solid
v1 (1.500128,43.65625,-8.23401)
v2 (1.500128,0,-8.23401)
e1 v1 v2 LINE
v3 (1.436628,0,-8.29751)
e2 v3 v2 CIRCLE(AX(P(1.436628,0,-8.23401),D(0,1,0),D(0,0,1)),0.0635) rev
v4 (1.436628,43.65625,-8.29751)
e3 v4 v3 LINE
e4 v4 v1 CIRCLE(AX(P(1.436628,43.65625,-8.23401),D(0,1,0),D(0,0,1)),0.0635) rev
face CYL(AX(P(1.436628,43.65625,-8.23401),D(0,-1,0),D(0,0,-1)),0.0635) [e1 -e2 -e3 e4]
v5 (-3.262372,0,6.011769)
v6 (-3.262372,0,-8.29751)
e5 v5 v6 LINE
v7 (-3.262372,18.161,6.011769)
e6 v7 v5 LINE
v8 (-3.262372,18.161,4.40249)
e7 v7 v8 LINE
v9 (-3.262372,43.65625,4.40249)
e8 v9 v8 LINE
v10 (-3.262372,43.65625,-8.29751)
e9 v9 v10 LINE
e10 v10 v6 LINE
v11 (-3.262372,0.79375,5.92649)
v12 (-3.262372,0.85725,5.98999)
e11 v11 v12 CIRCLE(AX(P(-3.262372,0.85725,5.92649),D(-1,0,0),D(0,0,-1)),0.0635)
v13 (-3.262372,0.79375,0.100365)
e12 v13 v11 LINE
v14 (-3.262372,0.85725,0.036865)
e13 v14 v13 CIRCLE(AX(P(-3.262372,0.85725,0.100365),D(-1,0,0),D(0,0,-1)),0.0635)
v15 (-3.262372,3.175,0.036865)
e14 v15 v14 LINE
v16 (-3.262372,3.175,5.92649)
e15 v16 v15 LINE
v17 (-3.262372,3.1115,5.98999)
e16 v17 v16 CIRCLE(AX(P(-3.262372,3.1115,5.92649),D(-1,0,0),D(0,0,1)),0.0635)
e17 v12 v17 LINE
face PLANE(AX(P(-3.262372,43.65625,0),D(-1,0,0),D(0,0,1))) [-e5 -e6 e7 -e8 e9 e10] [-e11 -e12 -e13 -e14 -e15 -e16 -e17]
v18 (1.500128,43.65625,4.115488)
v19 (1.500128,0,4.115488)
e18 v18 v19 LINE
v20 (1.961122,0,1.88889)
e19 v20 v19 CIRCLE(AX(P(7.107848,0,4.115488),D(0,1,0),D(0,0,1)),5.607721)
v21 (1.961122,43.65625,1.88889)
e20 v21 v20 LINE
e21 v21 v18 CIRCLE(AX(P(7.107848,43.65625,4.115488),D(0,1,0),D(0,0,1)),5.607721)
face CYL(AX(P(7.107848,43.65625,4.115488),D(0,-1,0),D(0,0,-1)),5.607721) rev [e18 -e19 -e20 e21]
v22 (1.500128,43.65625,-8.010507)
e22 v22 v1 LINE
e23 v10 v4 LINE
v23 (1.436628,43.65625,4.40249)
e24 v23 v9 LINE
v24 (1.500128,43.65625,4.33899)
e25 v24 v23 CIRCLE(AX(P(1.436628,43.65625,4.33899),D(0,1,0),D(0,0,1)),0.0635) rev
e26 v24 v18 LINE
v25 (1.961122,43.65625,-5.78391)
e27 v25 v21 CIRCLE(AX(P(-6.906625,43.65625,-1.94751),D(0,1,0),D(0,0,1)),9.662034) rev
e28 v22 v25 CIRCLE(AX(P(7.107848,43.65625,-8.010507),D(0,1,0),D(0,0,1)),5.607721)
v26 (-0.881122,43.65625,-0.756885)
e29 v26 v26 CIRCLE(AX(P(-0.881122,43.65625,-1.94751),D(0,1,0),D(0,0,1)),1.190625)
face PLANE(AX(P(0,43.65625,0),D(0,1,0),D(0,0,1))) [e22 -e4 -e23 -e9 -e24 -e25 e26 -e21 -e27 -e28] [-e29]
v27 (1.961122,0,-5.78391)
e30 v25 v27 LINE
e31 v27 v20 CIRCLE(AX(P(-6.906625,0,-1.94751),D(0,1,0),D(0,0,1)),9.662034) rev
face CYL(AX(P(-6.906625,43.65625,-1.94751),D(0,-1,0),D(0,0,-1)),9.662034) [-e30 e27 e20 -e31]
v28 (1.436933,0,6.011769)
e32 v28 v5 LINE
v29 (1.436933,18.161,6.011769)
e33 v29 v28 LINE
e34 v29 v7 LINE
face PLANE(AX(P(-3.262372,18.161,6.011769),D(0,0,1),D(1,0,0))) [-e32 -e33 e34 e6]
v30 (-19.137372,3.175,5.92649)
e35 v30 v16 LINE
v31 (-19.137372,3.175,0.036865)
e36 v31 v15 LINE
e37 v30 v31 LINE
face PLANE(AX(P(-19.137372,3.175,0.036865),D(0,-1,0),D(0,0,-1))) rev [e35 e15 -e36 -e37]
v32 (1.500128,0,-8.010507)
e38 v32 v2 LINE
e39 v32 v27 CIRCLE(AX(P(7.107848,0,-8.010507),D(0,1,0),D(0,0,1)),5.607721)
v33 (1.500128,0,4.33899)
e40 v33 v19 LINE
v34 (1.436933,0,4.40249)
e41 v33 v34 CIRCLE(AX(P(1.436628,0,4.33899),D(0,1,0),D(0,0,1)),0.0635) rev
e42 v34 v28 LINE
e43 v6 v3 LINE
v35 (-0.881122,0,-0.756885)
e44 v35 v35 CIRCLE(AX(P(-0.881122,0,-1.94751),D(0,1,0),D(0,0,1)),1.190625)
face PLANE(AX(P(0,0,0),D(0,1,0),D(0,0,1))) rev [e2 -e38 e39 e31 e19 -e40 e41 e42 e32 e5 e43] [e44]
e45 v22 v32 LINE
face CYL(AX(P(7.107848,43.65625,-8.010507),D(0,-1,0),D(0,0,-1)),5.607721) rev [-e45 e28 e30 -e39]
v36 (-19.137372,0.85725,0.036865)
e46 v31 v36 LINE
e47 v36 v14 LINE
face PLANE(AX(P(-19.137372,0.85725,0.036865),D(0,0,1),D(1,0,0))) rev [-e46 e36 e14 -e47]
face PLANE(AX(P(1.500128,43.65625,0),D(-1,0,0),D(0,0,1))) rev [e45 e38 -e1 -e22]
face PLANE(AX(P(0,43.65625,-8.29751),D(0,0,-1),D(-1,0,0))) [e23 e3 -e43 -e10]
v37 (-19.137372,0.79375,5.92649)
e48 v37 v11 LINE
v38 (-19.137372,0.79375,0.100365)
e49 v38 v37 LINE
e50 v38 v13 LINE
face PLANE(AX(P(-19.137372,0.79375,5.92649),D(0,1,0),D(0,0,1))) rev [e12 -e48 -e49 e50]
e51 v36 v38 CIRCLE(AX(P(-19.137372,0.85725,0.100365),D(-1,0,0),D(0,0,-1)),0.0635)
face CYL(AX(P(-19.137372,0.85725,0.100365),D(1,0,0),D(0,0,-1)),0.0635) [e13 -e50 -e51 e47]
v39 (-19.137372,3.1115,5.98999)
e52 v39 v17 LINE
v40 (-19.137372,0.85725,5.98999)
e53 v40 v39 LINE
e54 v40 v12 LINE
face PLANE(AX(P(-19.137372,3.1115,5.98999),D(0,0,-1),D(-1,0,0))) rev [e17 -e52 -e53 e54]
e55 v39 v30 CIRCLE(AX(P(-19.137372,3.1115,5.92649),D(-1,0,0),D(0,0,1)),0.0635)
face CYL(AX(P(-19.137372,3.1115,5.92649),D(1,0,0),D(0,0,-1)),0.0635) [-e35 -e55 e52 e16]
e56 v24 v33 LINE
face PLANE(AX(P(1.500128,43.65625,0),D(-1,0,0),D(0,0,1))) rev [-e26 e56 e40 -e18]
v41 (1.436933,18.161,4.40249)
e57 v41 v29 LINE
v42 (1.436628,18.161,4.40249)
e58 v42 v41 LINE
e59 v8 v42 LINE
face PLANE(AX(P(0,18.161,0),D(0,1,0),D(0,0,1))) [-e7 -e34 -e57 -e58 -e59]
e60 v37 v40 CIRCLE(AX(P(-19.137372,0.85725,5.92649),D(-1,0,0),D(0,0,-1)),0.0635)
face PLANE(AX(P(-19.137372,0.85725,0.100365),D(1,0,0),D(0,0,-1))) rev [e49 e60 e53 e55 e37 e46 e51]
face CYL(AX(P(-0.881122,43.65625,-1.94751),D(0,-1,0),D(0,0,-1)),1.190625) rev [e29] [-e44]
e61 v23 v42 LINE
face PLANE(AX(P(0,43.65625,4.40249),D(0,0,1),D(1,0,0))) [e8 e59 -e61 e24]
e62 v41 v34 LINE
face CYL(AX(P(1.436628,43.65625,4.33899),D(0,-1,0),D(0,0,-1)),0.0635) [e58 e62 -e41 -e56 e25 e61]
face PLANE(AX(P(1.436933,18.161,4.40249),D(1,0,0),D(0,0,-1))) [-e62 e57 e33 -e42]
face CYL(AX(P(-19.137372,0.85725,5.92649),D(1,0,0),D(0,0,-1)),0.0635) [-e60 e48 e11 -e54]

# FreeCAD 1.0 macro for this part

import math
import FreeCAD as App
import Part
import Sketcher
Q = App.Units.Quantity


def add_polygon(sketch, points):
    """Adds a closed chain of lines whose ends are joined by coincident constraints."""
    first, n = sketch.GeometryCount, len(points)
    for a, b in zip(points, points[1:] + points[:1]):
        sketch.addGeometry(Part.LineSegment(App.Vector(*a, 0), App.Vector(*b, 0)), False)
    for i in range(n):
        sketch.addConstraint(Sketcher.Constraint("Coincident", first + i, 2, first + (i + 1) % n, 1))

doc = App.newDocument("Part")
body = doc.addObject("PartDesign::Body", "Body")

# Sketch on XZ plane
sketch1 = doc.addObject("Sketcher::SketchObject", "Sketch")
body.addObject(sketch1)
sketch1.AttachmentSupport = (doc.XZ_Plane, [""])
sketch1.MapMode = "FlatFace"
sketch1.addGeometry([
    Part.ArcOfCircle(Part.Circle(App.Vector(7.107848, -8.010507, 0), App.Vector(0, 0, 1), 5.607721), math.radians(156.605532), math.radians(180)),  # 0
    Part.LineSegment(App.Vector(1.500128, -8.010507, 0), App.Vector(1.500128, -8.23401, 0)),  # 1
    Part.ArcOfCircle(Part.Circle(App.Vector(1.436628, -8.23401, 0), App.Vector(0, 0, 1), 0.0635), math.radians(-90), math.radians(0)),  # 2
    Part.LineSegment(App.Vector(1.436628, -8.29751, 0), App.Vector(-3.262372, -8.29751, 0)),  # 3
    Part.LineSegment(App.Vector(-3.262372, -8.29751, 0), App.Vector(-3.262372, 4.40249, 0)),  # 4
    Part.LineSegment(App.Vector(-3.262372, 4.40249, 0), App.Vector(1.436628, 4.40249, 0)),  # 5
    Part.ArcOfCircle(Part.Circle(App.Vector(1.436628, 4.33899, 0), App.Vector(0, 0, 1), 0.0635), math.radians(-0.000001), math.radians(90.000001)),  # 6
    Part.LineSegment(App.Vector(1.500128, 4.33899, 0), App.Vector(1.500128, 4.115488, 0)),  # 7
    Part.ArcOfCircle(Part.Circle(App.Vector(7.107848, 4.115488, 0), App.Vector(0, 0, 1), 5.607721), math.radians(-180), math.radians(-156.605532)),  # 8
    Part.ArcOfCircle(Part.Circle(App.Vector(-6.906625, -1.94751, 0), App.Vector(0, 0, 1), 9.662034), math.radians(-23.394468), math.radians(23.394468)),  # 9
    Part.Circle(App.Vector(-0.881122, -1.94751, 0), App.Vector(0, 0, 1), 1.190625),  # 10
], False)
sketch1.addConstraint([
    Sketcher.Constraint("Tangent", 0, 2, 1, 1),
    Sketcher.Constraint("Tangent", 1, 2, 2, 2),
    Sketcher.Constraint("Tangent", 2, 1, 3, 1),
    Sketcher.Constraint("Coincident", 3, 2, 4, 1),
    Sketcher.Constraint("Coincident", 4, 2, 5, 1),
    Sketcher.Constraint("Tangent", 5, 2, 6, 2),
    Sketcher.Constraint("Tangent", 6, 1, 7, 1),
    Sketcher.Constraint("Tangent", 7, 2, 8, 1),
    Sketcher.Constraint("Tangent", 8, 2, 9, 2),
    Sketcher.Constraint("Tangent", 9, 1, 0, 1),
    Sketcher.Constraint("Vertical", 1),
    Sketcher.Constraint("Horizontal", 3),
    Sketcher.Constraint("Vertical", 4),
    Sketcher.Constraint("Horizontal", 5),
    Sketcher.Constraint("Vertical", 7),
    Sketcher.Constraint("Equal", 2, 6),
    Sketcher.Constraint("Equal", 0, 8),
    Sketcher.Constraint("Horizontal", 9, 3, 10, 3),
    Sketcher.Constraint("Vertical", 2, 3, 6, 3),
    Sketcher.Constraint("Equal", 1, 7),
    Sketcher.Constraint("Diameter", 10, Q("0.09375 in")),
    Sketcher.Constraint("DistanceY", 4, 1, 4, 2, Q("0.5 in")),
    Sketcher.Constraint("Radius", 2, Q("0.0025 in")),
    Sketcher.Constraint("DistanceX", 3, 2, 3, 1, Q("0.185 in")),
    Sketcher.Constraint("Radius", 0, Q("5.607721 mm")),
    Sketcher.Constraint("DistanceX", 10, 3, 0, 2, Q("0.09375 in")),
    Sketcher.Constraint("Radius", 9, Q("9.662034 mm")),
    Sketcher.Constraint("DistanceY", 8, 2, 6, 1, Q("2.4501 mm")),
    Sketcher.Constraint("DistanceX", -1, 1, 0, 3, Q("7.107848 mm")),
    Sketcher.Constraint("DistanceY", 2, 3, -1, 1, Q("8.23401 mm")),
])
pad1 = doc.addObject("PartDesign::Pad", "Pad")
body.addObject(pad1)
pad1.Profile = sketch1
pad1.Length = Q("1.71875 in")
pad1.Reversed = True

# Sketch on YZ plane
sketch2 = doc.addObject("Sketcher::SketchObject", "Sketch001")
body.addObject(sketch2)
sketch2.AttachmentSupport = (doc.YZ_Plane, [""])
sketch2.MapMode = "FlatFace"
sketch2.AttachmentOffset = App.Placement(App.Vector(0, 0, -3.262372), App.Rotation())
sketch2.addGeometry([
    Part.LineSegment(App.Vector(3.175, 5.92649, 0), App.Vector(3.175, 0.036865, 0)),  # 0
    Part.LineSegment(App.Vector(3.175, 0.036865, 0), App.Vector(0.85725, 0.036865, 0)),  # 1
    Part.ArcOfCircle(Part.Circle(App.Vector(0.85725, 0.100365, 0), App.Vector(0, 0, 1), 0.0635), math.radians(180), math.radians(270)),  # 2
    Part.LineSegment(App.Vector(0.79375, 0.100365, 0), App.Vector(0.79375, 5.92649, 0)),  # 3
    Part.ArcOfCircle(Part.Circle(App.Vector(0.85725, 5.92649, 0), App.Vector(0, 0, 1), 0.0635), math.radians(89.999999), math.radians(180.000001)),  # 4
    Part.LineSegment(App.Vector(0.85725, 5.98999, 0), App.Vector(3.1115, 5.98999, 0)),  # 5
    Part.ArcOfCircle(Part.Circle(App.Vector(3.1115, 5.92649, 0), App.Vector(0, 0, 1), 0.0635), math.radians(-0.000001), math.radians(90.000001)),  # 6
], False)
sketch2.addConstraint([
    Sketcher.Constraint("Coincident", 0, 2, 1, 1),
    Sketcher.Constraint("Tangent", 1, 2, 2, 2),
    Sketcher.Constraint("Tangent", 2, 1, 3, 1),
    Sketcher.Constraint("Tangent", 3, 2, 4, 2),
    Sketcher.Constraint("Tangent", 4, 1, 5, 1),
    Sketcher.Constraint("Tangent", 5, 2, 6, 2),
    Sketcher.Constraint("Tangent", 6, 1, 0, 1),
    Sketcher.Constraint("Vertical", 0),
    Sketcher.Constraint("Horizontal", 1),
    Sketcher.Constraint("Vertical", 3),
    Sketcher.Constraint("Horizontal", 5),
    Sketcher.Constraint("Equal", 2, 4),
    Sketcher.Constraint("Equal", 4, 6),
    Sketcher.Constraint("Radius", 2, Q("0.0025 in")),
    Sketcher.Constraint("DistanceX", -1, 1, 0, 2, Q("0.125 in")),
    Sketcher.Constraint("DistanceX", -1, 1, 2, 1, Q("0.03125 in")),
    Sketcher.Constraint("DistanceY", 0, 2, 5, 2, Q("0.234375 in")),
    Sketcher.Constraint("DistanceY", -1, 1, 4, 3, Q("5.92649 mm")),
])
pad2 = doc.addObject("PartDesign::Pad", "Pad001")
body.addObject(pad2)
pad2.Profile = sketch2
pad2.Length = Q("0.625 in")
pad2.Reversed = True

# Sketch on XZ plane
sketch3 = doc.addObject("Sketcher::SketchObject", "Sketch002")
body.addObject(sketch3)
sketch3.AttachmentSupport = (doc.XZ_Plane, [""])
sketch3.MapMode = "FlatFace"
add_polygon(sketch3, [(-3.262372, 6.011769), (-3.262372, 4.40249), (1.436933, 4.40249), (1.436933, 6.011769)])  # lines 0-3
sketch3.addConstraint([
    Sketcher.Constraint("Vertical", 0),
    Sketcher.Constraint("Horizontal", 1),
    Sketcher.Constraint("Vertical", 2),
    Sketcher.Constraint("Horizontal", 3),
    Sketcher.Constraint("DistanceY", 0, 2, 0, 1, Q("1.609279 mm")),
    Sketcher.Constraint("DistanceX", 1, 1, 1, 2, Q("4.699305 mm")),
    Sketcher.Constraint("DistanceY", -1, 1, 0, 2, Q("4.40249 mm")),
    Sketcher.Constraint("DistanceX", 0, 2, -1, 1, Q("3.262372 mm")),
])
pad3 = doc.addObject("PartDesign::Pad", "Pad002")
body.addObject(pad3)
pad3.Profile = sketch3
pad3.Length = Q("0.715 in")
pad3.Reversed = True

doc.recompute()
